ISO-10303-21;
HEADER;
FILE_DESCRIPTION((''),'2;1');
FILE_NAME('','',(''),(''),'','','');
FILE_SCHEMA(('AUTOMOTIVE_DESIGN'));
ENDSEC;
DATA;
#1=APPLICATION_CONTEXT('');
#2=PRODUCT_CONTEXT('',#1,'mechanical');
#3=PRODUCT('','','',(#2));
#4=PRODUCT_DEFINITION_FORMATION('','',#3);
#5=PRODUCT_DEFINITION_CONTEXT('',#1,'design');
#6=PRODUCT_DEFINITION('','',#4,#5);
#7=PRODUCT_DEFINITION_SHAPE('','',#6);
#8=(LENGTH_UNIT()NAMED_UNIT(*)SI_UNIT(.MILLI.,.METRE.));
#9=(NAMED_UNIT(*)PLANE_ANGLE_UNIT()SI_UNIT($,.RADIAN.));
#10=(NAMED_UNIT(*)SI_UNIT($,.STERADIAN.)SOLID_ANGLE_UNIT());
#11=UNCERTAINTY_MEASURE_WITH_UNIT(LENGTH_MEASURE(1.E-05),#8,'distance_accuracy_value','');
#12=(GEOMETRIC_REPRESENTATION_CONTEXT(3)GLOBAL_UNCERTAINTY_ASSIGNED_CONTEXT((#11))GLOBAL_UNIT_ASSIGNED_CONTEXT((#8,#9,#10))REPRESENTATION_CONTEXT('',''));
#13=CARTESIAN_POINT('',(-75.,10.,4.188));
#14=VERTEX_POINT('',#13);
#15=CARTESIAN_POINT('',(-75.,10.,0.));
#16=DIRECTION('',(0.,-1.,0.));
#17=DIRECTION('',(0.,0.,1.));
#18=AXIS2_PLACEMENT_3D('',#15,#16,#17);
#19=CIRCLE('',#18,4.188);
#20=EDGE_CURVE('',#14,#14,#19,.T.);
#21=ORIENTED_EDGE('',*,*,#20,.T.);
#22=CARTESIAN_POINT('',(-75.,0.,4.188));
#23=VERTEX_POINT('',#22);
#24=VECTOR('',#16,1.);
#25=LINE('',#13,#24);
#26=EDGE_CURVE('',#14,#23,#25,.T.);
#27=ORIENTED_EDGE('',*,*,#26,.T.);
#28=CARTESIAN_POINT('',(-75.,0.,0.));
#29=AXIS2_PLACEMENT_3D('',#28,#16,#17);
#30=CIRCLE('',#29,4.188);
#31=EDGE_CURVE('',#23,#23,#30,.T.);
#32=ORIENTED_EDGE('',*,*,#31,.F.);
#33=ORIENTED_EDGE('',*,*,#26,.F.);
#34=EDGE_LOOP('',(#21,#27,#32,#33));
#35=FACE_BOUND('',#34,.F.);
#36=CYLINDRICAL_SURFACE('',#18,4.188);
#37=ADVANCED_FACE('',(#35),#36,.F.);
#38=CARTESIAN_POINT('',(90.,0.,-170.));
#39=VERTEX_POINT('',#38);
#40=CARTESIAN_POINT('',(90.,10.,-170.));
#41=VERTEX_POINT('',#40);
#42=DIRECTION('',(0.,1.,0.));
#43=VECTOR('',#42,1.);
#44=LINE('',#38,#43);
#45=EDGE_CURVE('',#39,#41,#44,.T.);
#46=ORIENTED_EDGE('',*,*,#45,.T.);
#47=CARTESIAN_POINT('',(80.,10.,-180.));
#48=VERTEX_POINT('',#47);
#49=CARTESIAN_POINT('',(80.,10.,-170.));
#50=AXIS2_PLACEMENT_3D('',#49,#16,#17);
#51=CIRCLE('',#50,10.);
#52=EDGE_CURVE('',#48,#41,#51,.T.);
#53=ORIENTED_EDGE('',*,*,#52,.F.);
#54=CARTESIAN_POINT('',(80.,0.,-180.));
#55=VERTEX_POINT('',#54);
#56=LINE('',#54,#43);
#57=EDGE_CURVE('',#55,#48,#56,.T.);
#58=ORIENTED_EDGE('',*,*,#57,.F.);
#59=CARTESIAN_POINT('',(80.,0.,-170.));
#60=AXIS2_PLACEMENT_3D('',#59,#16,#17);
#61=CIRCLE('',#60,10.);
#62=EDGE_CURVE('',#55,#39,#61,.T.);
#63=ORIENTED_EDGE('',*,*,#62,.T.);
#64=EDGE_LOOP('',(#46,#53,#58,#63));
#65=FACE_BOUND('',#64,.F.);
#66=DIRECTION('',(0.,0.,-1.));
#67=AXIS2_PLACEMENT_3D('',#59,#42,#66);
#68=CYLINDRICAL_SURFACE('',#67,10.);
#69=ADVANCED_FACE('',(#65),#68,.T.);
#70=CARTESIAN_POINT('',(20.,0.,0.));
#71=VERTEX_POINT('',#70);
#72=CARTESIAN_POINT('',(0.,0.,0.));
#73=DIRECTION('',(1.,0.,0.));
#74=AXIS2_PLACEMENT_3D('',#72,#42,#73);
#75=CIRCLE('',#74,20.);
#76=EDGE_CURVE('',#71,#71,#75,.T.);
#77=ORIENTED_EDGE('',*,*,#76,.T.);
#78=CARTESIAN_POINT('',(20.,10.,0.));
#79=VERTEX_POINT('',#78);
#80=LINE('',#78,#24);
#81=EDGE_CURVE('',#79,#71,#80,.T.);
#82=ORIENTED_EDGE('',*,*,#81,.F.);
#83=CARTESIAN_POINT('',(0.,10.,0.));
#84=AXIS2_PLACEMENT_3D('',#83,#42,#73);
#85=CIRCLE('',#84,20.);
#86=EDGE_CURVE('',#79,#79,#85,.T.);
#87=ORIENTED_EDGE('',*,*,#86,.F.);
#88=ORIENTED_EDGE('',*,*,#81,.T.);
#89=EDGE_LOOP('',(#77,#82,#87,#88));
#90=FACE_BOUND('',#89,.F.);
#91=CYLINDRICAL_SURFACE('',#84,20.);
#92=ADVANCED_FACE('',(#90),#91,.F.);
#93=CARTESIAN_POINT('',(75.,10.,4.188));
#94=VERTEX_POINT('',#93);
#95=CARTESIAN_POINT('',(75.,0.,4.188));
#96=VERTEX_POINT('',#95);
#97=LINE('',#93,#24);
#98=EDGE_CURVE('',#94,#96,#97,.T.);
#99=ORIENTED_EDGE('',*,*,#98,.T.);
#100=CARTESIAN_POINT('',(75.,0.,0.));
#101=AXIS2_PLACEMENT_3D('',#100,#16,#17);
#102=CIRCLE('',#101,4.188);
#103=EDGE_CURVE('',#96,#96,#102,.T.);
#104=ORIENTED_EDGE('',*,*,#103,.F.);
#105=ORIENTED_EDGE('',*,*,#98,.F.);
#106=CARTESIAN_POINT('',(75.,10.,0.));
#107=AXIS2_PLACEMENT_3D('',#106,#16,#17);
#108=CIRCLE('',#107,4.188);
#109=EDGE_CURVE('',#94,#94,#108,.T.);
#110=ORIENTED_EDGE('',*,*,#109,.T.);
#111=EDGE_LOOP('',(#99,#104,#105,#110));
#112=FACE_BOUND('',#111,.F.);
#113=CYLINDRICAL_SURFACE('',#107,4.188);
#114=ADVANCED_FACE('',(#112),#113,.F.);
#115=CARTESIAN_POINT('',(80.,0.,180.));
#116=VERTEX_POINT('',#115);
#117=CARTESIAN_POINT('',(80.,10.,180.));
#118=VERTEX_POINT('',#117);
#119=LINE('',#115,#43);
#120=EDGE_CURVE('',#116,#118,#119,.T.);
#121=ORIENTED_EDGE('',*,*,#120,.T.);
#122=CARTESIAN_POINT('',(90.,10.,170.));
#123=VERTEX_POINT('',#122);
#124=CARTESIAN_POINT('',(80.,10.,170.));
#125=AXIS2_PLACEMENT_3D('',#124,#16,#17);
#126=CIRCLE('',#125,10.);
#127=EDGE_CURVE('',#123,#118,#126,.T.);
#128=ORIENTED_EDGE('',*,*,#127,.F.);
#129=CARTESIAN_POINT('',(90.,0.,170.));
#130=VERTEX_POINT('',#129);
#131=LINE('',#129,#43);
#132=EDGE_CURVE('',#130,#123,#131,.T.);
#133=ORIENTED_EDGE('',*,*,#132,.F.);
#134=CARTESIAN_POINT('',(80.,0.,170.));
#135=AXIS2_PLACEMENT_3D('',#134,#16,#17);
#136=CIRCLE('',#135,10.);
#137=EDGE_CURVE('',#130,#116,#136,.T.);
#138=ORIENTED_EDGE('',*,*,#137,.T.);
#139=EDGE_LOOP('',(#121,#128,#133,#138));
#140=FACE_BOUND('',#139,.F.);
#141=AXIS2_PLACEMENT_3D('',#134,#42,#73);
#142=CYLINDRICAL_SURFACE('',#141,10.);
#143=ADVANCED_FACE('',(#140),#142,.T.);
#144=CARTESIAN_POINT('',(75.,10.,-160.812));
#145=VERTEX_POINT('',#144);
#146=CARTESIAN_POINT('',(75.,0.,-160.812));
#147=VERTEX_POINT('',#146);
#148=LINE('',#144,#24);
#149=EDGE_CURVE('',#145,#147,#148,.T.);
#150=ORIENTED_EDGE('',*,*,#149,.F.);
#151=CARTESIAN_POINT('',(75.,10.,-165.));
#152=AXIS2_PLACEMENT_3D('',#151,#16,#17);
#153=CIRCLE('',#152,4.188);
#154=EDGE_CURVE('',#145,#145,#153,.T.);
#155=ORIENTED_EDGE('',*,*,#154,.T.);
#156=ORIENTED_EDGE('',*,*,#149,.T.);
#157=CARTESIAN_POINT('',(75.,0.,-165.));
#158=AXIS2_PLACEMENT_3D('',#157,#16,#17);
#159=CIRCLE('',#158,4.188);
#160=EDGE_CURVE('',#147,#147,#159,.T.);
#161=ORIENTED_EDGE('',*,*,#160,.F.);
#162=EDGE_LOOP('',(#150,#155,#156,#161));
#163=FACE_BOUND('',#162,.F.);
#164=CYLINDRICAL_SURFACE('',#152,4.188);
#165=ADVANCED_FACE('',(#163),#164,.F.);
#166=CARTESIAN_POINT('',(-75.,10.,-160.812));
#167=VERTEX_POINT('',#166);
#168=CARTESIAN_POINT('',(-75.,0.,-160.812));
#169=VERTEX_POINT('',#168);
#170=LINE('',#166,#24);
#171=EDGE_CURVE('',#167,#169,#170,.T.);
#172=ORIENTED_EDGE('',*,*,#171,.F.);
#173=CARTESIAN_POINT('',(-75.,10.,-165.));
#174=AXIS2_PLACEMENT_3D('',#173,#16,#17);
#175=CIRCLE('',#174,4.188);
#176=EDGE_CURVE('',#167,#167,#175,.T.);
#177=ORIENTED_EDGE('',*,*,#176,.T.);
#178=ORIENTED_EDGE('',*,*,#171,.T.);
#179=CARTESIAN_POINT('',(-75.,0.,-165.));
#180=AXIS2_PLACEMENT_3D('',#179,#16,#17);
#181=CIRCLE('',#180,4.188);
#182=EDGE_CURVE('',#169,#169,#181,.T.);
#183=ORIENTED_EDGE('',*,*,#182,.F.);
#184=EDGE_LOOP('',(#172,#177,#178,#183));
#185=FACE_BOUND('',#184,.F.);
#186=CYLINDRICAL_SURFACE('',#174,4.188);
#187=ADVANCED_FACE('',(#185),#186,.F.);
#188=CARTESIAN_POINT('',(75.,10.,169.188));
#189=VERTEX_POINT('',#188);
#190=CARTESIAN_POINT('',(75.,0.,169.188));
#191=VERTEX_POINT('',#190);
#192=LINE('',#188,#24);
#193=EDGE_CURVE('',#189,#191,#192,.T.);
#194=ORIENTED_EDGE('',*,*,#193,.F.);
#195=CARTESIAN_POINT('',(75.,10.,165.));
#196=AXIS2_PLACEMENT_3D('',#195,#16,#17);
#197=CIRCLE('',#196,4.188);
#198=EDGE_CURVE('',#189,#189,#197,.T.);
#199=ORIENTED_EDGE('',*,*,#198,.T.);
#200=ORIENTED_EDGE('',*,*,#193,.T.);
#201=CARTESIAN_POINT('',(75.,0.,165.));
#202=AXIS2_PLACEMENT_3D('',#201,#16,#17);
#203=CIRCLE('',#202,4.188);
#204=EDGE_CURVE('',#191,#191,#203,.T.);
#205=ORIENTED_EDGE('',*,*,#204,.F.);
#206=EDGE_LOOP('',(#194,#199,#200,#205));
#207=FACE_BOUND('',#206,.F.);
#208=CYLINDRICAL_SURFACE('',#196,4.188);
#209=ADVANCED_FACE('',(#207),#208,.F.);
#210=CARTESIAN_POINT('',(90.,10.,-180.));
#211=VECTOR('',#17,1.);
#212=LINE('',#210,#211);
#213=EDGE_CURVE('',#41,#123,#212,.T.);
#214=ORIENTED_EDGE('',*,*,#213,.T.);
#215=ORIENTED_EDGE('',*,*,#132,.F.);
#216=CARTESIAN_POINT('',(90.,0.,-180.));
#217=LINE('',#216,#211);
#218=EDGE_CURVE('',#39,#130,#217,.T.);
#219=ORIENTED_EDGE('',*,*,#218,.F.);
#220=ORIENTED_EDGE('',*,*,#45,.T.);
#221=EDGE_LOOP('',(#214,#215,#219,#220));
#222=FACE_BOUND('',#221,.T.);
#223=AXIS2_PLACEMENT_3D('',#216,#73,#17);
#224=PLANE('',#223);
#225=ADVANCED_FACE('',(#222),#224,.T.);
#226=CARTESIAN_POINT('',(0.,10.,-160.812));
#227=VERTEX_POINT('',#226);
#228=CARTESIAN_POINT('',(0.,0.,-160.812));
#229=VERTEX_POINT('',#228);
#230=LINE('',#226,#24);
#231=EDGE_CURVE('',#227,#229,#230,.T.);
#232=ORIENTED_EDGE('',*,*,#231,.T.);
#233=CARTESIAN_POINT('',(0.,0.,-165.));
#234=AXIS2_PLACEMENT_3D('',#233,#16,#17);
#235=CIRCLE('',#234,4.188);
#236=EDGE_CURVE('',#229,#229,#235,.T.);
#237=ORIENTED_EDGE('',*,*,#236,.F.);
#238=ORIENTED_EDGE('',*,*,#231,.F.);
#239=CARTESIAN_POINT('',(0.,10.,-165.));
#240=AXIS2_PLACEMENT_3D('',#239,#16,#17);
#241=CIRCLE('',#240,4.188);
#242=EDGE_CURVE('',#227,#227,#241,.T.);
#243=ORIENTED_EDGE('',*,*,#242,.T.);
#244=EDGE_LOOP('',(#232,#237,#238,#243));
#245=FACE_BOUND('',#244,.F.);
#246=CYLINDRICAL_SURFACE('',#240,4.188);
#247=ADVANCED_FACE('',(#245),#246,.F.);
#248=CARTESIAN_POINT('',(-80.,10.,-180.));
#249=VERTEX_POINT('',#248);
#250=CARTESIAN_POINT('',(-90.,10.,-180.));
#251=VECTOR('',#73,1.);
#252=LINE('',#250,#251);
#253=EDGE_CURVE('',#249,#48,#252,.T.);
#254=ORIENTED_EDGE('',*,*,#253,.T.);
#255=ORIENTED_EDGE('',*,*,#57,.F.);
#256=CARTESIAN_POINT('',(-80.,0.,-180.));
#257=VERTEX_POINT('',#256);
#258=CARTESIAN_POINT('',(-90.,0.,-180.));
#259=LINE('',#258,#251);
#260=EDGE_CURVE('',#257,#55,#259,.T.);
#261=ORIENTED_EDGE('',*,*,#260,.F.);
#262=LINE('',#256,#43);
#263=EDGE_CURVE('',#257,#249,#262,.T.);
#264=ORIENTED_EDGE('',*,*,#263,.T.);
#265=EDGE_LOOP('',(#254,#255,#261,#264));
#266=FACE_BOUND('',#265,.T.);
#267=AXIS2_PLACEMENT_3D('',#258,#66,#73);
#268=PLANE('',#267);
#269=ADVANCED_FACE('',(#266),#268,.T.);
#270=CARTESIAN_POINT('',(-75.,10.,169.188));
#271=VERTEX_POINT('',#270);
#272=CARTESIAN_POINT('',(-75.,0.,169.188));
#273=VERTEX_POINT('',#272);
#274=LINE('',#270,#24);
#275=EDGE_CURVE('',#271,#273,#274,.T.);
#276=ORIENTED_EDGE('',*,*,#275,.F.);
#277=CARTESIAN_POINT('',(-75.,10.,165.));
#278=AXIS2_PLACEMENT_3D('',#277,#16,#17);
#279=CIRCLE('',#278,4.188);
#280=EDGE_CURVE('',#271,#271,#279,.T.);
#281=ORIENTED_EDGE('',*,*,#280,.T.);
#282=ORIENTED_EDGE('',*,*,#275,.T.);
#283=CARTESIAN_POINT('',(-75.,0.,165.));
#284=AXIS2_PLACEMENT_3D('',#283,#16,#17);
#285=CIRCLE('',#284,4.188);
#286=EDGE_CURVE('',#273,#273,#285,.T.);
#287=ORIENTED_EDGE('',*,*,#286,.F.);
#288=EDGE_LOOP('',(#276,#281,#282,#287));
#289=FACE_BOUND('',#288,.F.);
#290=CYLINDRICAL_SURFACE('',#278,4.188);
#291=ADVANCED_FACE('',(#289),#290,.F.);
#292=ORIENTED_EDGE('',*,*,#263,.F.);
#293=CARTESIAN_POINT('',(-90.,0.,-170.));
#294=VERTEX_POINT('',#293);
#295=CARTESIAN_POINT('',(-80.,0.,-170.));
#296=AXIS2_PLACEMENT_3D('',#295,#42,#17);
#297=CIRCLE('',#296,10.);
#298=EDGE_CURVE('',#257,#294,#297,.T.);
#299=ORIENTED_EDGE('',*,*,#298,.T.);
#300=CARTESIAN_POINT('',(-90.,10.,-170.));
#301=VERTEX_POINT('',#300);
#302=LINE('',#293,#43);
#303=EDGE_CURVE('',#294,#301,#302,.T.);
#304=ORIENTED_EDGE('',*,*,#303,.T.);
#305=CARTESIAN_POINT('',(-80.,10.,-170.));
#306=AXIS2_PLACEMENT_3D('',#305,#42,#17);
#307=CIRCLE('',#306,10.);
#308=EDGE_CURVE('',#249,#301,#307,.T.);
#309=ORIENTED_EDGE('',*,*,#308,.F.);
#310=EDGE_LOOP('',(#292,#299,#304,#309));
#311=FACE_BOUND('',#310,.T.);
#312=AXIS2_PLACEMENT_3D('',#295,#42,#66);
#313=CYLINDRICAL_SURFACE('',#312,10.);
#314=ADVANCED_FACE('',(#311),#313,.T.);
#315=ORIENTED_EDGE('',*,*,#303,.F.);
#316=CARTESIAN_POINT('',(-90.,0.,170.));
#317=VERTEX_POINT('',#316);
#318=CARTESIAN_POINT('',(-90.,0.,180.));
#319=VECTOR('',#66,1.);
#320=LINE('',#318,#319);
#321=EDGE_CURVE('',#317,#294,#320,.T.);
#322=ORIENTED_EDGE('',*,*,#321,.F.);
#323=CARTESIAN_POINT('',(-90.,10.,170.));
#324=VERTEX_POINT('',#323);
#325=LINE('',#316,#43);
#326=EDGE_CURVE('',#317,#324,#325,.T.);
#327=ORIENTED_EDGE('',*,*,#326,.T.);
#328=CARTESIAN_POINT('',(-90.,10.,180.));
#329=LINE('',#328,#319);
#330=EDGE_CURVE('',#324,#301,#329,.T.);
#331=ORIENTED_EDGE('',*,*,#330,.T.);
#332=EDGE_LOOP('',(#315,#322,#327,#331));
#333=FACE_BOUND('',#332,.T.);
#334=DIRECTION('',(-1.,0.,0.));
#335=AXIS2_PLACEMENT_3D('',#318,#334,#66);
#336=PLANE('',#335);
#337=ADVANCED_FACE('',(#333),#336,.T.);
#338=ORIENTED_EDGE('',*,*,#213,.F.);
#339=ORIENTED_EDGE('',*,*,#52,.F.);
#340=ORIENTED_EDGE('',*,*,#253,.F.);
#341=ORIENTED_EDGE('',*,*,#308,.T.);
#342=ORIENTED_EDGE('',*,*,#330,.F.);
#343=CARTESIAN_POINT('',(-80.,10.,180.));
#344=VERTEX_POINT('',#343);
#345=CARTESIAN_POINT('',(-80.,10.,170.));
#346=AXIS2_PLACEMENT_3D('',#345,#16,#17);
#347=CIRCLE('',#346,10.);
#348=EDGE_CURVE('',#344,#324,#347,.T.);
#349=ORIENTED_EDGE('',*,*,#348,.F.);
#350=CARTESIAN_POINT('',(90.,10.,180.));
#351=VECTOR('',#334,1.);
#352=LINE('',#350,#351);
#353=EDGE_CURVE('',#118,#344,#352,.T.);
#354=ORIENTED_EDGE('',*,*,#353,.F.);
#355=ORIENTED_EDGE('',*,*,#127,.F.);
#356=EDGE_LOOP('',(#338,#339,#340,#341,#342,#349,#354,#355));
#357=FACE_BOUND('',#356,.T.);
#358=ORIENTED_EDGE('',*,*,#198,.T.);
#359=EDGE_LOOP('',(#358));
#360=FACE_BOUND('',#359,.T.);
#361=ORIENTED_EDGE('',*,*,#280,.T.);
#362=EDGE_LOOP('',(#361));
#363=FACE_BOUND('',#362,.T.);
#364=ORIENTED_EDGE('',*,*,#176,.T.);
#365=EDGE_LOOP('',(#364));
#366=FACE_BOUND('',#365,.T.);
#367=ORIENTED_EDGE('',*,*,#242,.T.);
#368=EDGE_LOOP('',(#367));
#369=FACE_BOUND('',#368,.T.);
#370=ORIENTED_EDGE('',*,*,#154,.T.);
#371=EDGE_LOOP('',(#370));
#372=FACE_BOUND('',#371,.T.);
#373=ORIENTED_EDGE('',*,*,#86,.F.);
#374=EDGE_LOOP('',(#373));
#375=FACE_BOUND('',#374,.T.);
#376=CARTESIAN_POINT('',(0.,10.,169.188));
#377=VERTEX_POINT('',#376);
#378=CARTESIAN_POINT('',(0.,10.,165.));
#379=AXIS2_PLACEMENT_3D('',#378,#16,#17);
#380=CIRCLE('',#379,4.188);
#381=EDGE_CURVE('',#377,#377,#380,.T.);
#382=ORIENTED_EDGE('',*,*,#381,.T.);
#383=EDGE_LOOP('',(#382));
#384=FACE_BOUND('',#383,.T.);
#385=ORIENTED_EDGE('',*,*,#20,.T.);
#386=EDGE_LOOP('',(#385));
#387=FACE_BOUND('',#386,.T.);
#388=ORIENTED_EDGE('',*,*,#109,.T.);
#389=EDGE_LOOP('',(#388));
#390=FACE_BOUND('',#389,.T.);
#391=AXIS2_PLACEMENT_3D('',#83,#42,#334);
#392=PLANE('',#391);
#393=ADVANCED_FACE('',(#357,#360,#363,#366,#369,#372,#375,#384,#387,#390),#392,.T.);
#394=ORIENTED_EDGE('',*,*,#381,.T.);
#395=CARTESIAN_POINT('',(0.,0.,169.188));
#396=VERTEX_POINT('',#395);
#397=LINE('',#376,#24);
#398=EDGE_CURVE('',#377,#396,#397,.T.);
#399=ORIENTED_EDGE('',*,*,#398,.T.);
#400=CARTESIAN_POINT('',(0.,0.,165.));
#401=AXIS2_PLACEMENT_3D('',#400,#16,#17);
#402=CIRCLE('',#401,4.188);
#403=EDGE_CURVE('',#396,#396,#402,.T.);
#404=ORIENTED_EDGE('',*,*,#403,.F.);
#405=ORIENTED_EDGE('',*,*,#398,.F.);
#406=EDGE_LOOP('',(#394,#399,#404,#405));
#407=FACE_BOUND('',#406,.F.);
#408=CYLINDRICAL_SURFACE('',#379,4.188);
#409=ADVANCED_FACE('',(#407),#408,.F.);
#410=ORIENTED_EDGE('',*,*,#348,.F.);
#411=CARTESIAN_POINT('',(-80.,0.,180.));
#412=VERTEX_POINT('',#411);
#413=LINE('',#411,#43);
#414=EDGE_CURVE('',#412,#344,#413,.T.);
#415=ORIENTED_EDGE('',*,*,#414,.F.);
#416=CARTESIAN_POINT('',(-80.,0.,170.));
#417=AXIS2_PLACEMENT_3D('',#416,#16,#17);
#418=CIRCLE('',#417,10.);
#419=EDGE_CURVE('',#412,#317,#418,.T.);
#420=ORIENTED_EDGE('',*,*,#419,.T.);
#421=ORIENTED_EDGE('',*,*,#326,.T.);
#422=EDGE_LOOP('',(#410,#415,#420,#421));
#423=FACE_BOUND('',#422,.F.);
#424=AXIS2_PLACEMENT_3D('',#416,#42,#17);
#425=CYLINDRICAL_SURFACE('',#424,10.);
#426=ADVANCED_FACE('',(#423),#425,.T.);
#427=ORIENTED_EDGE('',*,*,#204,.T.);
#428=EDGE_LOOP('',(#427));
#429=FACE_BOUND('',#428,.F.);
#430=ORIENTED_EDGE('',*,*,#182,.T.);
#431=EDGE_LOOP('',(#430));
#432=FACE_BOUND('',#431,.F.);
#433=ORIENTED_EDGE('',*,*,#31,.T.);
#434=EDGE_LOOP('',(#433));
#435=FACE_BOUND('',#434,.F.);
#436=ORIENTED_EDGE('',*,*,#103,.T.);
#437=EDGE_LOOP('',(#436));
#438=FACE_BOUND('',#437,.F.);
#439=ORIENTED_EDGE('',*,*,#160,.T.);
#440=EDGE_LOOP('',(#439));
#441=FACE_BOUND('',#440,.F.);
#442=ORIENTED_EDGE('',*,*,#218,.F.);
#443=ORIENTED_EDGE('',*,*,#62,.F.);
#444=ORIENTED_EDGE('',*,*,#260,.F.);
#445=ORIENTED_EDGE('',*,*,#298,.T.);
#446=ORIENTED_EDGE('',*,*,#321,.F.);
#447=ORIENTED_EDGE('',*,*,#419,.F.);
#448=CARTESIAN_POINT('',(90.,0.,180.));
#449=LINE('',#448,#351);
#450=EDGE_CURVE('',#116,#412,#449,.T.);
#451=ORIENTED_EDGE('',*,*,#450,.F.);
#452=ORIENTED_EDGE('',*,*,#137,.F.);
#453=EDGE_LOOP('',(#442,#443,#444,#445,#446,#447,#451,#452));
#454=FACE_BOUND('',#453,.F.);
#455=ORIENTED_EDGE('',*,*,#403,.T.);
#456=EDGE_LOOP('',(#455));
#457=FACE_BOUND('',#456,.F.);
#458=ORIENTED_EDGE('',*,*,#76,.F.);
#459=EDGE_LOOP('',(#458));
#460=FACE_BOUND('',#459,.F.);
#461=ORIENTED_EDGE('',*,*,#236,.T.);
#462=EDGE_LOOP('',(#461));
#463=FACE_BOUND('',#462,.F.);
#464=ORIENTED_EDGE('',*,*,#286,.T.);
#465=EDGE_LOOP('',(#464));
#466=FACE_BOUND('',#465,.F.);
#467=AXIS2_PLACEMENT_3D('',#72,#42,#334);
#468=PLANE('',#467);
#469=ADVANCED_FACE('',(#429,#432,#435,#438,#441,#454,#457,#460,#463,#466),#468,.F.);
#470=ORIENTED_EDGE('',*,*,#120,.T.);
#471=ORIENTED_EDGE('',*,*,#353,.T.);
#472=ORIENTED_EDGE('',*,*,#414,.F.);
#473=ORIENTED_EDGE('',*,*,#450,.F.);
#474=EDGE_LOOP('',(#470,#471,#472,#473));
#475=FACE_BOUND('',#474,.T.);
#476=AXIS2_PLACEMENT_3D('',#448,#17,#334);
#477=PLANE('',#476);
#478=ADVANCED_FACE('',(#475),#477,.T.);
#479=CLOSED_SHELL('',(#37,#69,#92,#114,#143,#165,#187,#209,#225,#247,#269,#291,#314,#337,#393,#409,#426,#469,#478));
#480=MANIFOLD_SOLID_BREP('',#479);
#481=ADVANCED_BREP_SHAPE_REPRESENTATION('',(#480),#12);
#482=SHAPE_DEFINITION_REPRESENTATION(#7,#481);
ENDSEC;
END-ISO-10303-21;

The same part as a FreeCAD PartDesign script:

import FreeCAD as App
import Part
import Sketcher

V = App.Vector
Q = App.Units.Quantity


def edges_at(feature, points):
    """Names of the edges that pass closest to the given points."""
    edges = feature.Shape.Edges
    near = lambda p: min(range(len(edges)), key=lambda i: edges[i].distToShape(Part.Vertex(*p))[0])
    return sorted({f"Edge{near(p) + 1}" for p in points})


def add_polygon(sketch, points):
    """Adds a closed chain of lines whose ends are joined by coincident constraints."""
    first, n = sketch.GeometryCount, len(points)
    for a, b in zip(points, points[1:] + points[:1]):
        sketch.addGeometry(Part.LineSegment(App.Vector(*a, 0), App.Vector(*b, 0)), False)
    for i in range(n):
        sketch.addConstraint(Sketcher.Constraint("Coincident", first + i, 2, first + (i + 1) % n, 1))

doc = App.newDocument("Part")
body = doc.addObject("PartDesign::Body", "Body")

sketch1 = body.newObject("Sketcher::SketchObject", "Sketch")
sketch1.AttachmentSupport = (doc.getObject("XZ_Plane"), [""])
sketch1.MapMode = "FlatFace"
add_polygon(sketch1, [(90, -180), (-90, -180), (-90, 180), (90, 180)])
sketch1.addConstraint(Sketcher.Constraint("Horizontal", 0))
sketch1.addConstraint(Sketcher.Constraint("Vertical", 1))
sketch1.addConstraint(Sketcher.Constraint("Horizontal", 2))
sketch1.addConstraint(Sketcher.Constraint("Vertical", 3))
sketch1.addConstraint(Sketcher.Constraint("Symmetric", 0, 2, 2, 2, -1, 1))
sketch1.addConstraint(Sketcher.Constraint("DistanceX", 0, 2, 0, 1, Q("180 mm")))
sketch1.addConstraint(Sketcher.Constraint("DistanceY", 1, 1, 1, 2, Q("360 mm")))
pad1 = body.newObject("PartDesign::Pad", "Pad")
pad1.Profile = sketch1
pad1.Length = 10
pad1.Reversed = True
doc.recompute()

fillet = body.newObject("PartDesign::Fillet", "Fillet")
fillet.Base = (pad1, edges_at(pad1, [
    (-90, 5, -180),
    (-90, 5, 180),
    (90, 5, 180),
    (90, 5, -180),
]))
fillet.Radius = 10

sketch2 = body.newObject("Sketcher::SketchObject", "Sketch001")
sketch2.AttachmentSupport = (doc.getObject("XZ_Plane"), [""])
sketch2.MapMode = "FlatFace"
sketch2.AttachmentOffset = App.Placement(V(0, 0, -10), App.Rotation())
sketch2.addGeometry(Part.Circle(V(75, 165, 0), V(0, 0, 1), 4.2), False)
sketch2.addGeometry(Part.Circle(V(75, 0, 0), V(0, 0, 1), 4.2), False)
sketch2.addGeometry(Part.Circle(V(0, 165, 0), V(0, 0, 1), 4.2), False)
sketch2.addGeometry(Part.Circle(V(0, -165, 0), V(0, 0, 1), 4.2), False)
sketch2.addGeometry(Part.Circle(V(75, -165, 0), V(0, 0, 1), 4.2), False)
sketch2.addGeometry(Part.Circle(V(-75, -165, 0), V(0, 0, 1), 4.2), False)
sketch2.addGeometry(Part.Circle(V(-75, 0, 0), V(0, 0, 1), 4.2), False)
sketch2.addGeometry(Part.Circle(V(-75, 165, 0), V(0, 0, 1), 4.2), False)
sketch2.addConstraint(Sketcher.Constraint("Equal", 0, 1))
sketch2.addConstraint(Sketcher.Constraint("Equal", 1, 2))
sketch2.addConstraint(Sketcher.Constraint("Equal", 2, 3))
sketch2.addConstraint(Sketcher.Constraint("Equal", 3, 4))
sketch2.addConstraint(Sketcher.Constraint("Equal", 4, 5))
sketch2.addConstraint(Sketcher.Constraint("Equal", 5, 6))
sketch2.addConstraint(Sketcher.Constraint("Equal", 6, 7))
sketch2.addConstraint(Sketcher.Constraint("Symmetric", 2, 3, 3, 3, -1, 1))
sketch2.addConstraint(Sketcher.Constraint("Symmetric", 0, 3, 5, 3, -1, 1))
sketch2.addConstraint(Sketcher.Constraint("Symmetric", 1, 3, 6, 3, -1, 1))
sketch2.addConstraint(Sketcher.Constraint("Symmetric", 4, 3, 7, 3, -1, 1))
sketch2.addConstraint(Sketcher.Constraint("Symmetric", 4, 3, 5, 3, -2))
sketch2.addConstraint(Sketcher.Constraint("PointOnObject", 1, 3, -1))
sketch2.addConstraint(Sketcher.Constraint("PointOnObject", 2, 3, -2))
sketch2.addConstraint(Sketcher.Constraint("Horizontal", 0, 3, 2, 3))
sketch2.addConstraint(Sketcher.Constraint("Vertical", 0, 3, 1, 3))
sketch2.addConstraint(Sketcher.Constraint("Diameter", 0, Q("8.376 mm")))
sketch2.addConstraint(Sketcher.Constraint("DistanceX", -1, 1, 0, 3, Q("75 mm")))
sketch2.addConstraint(Sketcher.Constraint("DistanceY", -1, 1, 0, 3, Q("165 mm")))
doc.recompute()
hole = body.newObject("PartDesign::Hole", "Hole")
hole.Profile = sketch2
hole.ThreadType = "None"
hole.Diameter = 8.376
hole.DepthType = "ThroughAll"
hole.Reversed = True

sketch3 = body.newObject("Sketcher::SketchObject", "Sketch002")
sketch3.AttachmentSupport = (doc.getObject("XZ_Plane"), [""])
sketch3.MapMode = "FlatFace"
sketch3.AttachmentOffset = App.Placement(V(0, 0, -10), App.Rotation())
sketch3.addGeometry(Part.Circle(V(0, 0, 0), V(0, 0, 1), 20), False)
sketch3.addConstraint(Sketcher.Constraint("Coincident", 0, 3, -1, 1))
sketch3.addConstraint(Sketcher.Constraint("Diameter", 0, Q("40 mm")))
pocket1 = body.newObject("PartDesign::Pocket", "Pocket")
pocket1.Profile = sketch3
pocket1.Type = "ThroughAll"
pocket1.Reversed = True

doc.recompute()
